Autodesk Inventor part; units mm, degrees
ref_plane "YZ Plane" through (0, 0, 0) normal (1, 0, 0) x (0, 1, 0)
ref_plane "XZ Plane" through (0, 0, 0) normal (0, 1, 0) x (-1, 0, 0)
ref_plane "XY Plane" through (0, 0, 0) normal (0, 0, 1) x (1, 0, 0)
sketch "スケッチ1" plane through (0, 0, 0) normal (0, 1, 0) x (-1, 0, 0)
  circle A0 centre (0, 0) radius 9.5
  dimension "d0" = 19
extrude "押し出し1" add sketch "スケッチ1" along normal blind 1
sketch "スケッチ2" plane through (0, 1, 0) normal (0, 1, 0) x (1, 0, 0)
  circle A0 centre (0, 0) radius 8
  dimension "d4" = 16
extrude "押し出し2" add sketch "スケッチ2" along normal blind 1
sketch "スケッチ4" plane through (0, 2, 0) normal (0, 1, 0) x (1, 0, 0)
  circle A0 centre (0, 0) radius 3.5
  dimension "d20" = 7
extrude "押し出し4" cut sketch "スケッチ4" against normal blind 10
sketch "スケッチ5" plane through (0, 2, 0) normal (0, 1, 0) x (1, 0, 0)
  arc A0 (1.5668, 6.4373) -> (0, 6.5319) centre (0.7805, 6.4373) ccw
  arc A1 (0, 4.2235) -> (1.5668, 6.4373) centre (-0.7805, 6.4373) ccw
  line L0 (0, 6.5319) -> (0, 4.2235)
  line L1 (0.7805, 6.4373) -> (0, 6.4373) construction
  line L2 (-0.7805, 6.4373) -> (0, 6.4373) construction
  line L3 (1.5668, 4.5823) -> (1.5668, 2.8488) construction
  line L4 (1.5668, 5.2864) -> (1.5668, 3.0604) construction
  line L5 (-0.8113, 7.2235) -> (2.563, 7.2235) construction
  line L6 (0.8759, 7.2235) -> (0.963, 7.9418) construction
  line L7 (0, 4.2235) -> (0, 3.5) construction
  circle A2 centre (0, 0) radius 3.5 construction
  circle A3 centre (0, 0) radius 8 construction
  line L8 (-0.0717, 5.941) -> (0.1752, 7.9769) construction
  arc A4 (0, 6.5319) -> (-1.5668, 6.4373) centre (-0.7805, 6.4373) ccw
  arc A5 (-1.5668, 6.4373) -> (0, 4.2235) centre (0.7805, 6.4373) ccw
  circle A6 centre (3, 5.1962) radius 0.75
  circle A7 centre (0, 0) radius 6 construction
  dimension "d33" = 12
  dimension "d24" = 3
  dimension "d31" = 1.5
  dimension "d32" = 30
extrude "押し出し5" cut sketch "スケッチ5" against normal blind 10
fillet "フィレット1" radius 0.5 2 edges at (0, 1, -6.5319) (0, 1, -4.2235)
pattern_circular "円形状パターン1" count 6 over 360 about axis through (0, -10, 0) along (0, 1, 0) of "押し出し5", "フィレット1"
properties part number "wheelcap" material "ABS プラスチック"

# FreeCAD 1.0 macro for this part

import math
import FreeCAD as App
import Part
import Sketcher

V = App.Vector
Q = App.Units.Quantity


def edges_at(feature, points):
    """Names of the edges that pass closest to the given points."""
    edges = feature.Shape.Edges
    near = lambda p: min(range(len(edges)), key=lambda i: edges[i].distToShape(Part.Vertex(*p))[0])
    return sorted({f"Edge{near(p) + 1}" for p in points})

doc = App.newDocument("Part")
params = doc.addObject("Spreadsheet::Sheet", "Params")
for row, (alias, value) in enumerate([
    ("sketch1_diameter", "19 mm"),
    ("pad1_length", "1 mm"),
    ("sketch2_diameter", "16 mm"),
    ("pad2_length", "1 mm"),
    ("sketch3_diameter", "7 mm"),
    ("pocket1_length", "10 mm"),
    ("sketch4_diameter", "1.5 mm"),
    ("pocket2_length", "10 mm"),
    ("fillet_radius", "0.5 mm"),
], start=1):
    params.set(f"A{row}", alias)
    params.set(f"B{row}", "=" + value)
    params.setAlias(f"B{row}", alias)

body = doc.addObject("PartDesign::Body", "Body")

sketch1 = body.newObject("Sketcher::SketchObject", "Sketch")
sketch1.AttachmentSupport = (doc.getObject("XZ_Plane"), [""])
sketch1.MapMode = "FlatFace"
sketch1.addGeometry(Part.Circle(V(0, 0, 0), V(0, 0, 1), 10), False)
sketch1.addConstraint(Sketcher.Constraint("Coincident", 0, 3, -1, 1))
sketch1.addConstraint(Sketcher.Constraint("Diameter", 0, Q("19 mm")))
sketch1.setExpression("Constraints[1]", "Params.sketch1_diameter")
pad1 = body.newObject("PartDesign::Pad", "Pad")
pad1.Profile = sketch1
pad1.setExpression("Length", "Params.pad1_length")
pad1.Reversed = True

sketch2 = body.newObject("Sketcher::SketchObject", "Sketch001")
sketch2.AttachmentSupport = (doc.getObject("XZ_Plane"), [""])
sketch2.MapMode = "FlatFace"
sketch2.AttachmentOffset = App.Placement(V(0, 0, -1), App.Rotation())
sketch2.addGeometry(Part.Circle(V(0, 0, 0), V(0, 0, 1), 8), False)
sketch2.addConstraint(Sketcher.Constraint("Coincident", 0, 3, -1, 1))
sketch2.addConstraint(Sketcher.Constraint("Diameter", 0, Q("16 mm")))
sketch2.setExpression("Constraints[1]", "Params.sketch2_diameter")
pad2 = body.newObject("PartDesign::Pad", "Pad001")
pad2.Profile = sketch2
pad2.setExpression("Length", "Params.pad2_length")
pad2.Reversed = True

sketch3 = body.newObject("Sketcher::SketchObject", "Sketch002")
sketch3.AttachmentSupport = (doc.getObject("XZ_Plane"), [""])
sketch3.MapMode = "FlatFace"
sketch3.AttachmentOffset = App.Placement(V(0, 0, -2), App.Rotation())
sketch3.addGeometry(Part.Circle(V(0, 0, 0), V(0, 0, 1), 3.5), False)
sketch3.addConstraint(Sketcher.Constraint("Coincident", 0, 3, -1, 1))
sketch3.addConstraint(Sketcher.Constraint("Diameter", 0, Q("7 mm")))
sketch3.setExpression("Constraints[1]", "Params.sketch3_diameter")
pocket1 = body.newObject("PartDesign::Pocket", "Pocket")
pocket1.Profile = sketch3
pocket1.setExpression("Length", "Params.pocket1_length")
pocket1.Reversed = True

sketch4 = body.newObject("Sketcher::SketchObject", "Sketch003")
sketch4.AttachmentSupport = (doc.getObject("XZ_Plane"), [""])
sketch4.MapMode = "FlatFace"
sketch4.AttachmentOffset = App.Placement(V(0, 0, -2), App.Rotation())
sketch4.addGeometry(Part.ArcOfCircle(Part.Circle(V(-0.8, -6.4, 0), V(0, 0, 1), 2.3), math.radians(0), math.radians(71)), False)
sketch4.addGeometry(Part.ArcOfCircle(Part.Circle(V(0.8, -6.4, 0), V(0, 0, 1), 0.8), math.radians(-173), math.radians(0)), False)
sketch4.addGeometry(Part.ArcOfCircle(Part.Circle(V(-0.8, -6.4, 0), V(0, 0, 1), 0.8), math.radians(180), math.radians(353)), False)
sketch4.addGeometry(Part.ArcOfCircle(Part.Circle(V(0.8, -6.4, 0), V(0, 0, 1), 2.3), math.radians(109), math.radians(180)), False)
sketch4.addGeometry(Part.Circle(V(3, -5.2, 0), V(0, 0, 1), 0.8), False)
sketch4.addConstraint(Sketcher.Constraint("Tangent", 0, 1, 1, 2))
sketch4.addConstraint(Sketcher.Constraint("Coincident", 1, 1, 2, 2))
sketch4.addConstraint(Sketcher.Constraint("Tangent", 2, 1, 3, 2))
sketch4.addConstraint(Sketcher.Constraint("Coincident", 3, 1, 0, 2))
sketch4.addConstraint(Sketcher.Constraint("Coincident", 2, 3, 0, 3))
sketch4.addConstraint(Sketcher.Constraint("Coincident", 3, 3, 1, 3))
sketch4.addConstraint(Sketcher.Constraint("Equal", 1, 2))
sketch4.addConstraint(Sketcher.Constraint("Symmetric", 0, 3, 1, 3, -2))
sketch4.addConstraint(Sketcher.Constraint("Diameter", 4, Q("1.5 mm")))
sketch4.addConstraint(Sketcher.Constraint("DistanceX", -1, 1, 4, 3, Q("3 mm")))
sketch4.addConstraint(Sketcher.Constraint("Radius", 0, Q("2.3474 mm")))
sketch4.addConstraint(Sketcher.Constraint("Radius", 1, Q("0.7863 mm")))
sketch4.addConstraint(Sketcher.Constraint("DistanceY", 1, 1, -1, 1, Q("6.532 mm")))
sketch4.addConstraint(Sketcher.Constraint("DistanceY", 1, 3, 4, 3, Q("1.241 mm")))
sketch4.setExpression("Constraints[8]", "Params.sketch4_diameter")
pocket2 = body.newObject("PartDesign::Pocket", "Pocket001")
pocket2.Profile = sketch4
pocket2.setExpression("Length", "Params.pocket2_length")
pocket2.Reversed = True
doc.recompute()

fillet = body.newObject("PartDesign::Fillet", "Fillet")
fillet.Base = (pocket2, edges_at(pocket2, [(0, 1, -6.532), (0, 1, -4.223)]))
fillet.setExpression("Radius", "Params.fillet_radius")
doc.recompute()

polarpattern = body.newObject("PartDesign::PolarPattern", "PolarPattern")
polarpattern.Originals = [pocket2, fillet]
polarpattern.Axis = (doc.getObject("Y_Axis"), [""])
polarpattern.Angle = 360
polarpattern.Occurrences = 6
body.Tip = polarpattern

doc.recompute()
